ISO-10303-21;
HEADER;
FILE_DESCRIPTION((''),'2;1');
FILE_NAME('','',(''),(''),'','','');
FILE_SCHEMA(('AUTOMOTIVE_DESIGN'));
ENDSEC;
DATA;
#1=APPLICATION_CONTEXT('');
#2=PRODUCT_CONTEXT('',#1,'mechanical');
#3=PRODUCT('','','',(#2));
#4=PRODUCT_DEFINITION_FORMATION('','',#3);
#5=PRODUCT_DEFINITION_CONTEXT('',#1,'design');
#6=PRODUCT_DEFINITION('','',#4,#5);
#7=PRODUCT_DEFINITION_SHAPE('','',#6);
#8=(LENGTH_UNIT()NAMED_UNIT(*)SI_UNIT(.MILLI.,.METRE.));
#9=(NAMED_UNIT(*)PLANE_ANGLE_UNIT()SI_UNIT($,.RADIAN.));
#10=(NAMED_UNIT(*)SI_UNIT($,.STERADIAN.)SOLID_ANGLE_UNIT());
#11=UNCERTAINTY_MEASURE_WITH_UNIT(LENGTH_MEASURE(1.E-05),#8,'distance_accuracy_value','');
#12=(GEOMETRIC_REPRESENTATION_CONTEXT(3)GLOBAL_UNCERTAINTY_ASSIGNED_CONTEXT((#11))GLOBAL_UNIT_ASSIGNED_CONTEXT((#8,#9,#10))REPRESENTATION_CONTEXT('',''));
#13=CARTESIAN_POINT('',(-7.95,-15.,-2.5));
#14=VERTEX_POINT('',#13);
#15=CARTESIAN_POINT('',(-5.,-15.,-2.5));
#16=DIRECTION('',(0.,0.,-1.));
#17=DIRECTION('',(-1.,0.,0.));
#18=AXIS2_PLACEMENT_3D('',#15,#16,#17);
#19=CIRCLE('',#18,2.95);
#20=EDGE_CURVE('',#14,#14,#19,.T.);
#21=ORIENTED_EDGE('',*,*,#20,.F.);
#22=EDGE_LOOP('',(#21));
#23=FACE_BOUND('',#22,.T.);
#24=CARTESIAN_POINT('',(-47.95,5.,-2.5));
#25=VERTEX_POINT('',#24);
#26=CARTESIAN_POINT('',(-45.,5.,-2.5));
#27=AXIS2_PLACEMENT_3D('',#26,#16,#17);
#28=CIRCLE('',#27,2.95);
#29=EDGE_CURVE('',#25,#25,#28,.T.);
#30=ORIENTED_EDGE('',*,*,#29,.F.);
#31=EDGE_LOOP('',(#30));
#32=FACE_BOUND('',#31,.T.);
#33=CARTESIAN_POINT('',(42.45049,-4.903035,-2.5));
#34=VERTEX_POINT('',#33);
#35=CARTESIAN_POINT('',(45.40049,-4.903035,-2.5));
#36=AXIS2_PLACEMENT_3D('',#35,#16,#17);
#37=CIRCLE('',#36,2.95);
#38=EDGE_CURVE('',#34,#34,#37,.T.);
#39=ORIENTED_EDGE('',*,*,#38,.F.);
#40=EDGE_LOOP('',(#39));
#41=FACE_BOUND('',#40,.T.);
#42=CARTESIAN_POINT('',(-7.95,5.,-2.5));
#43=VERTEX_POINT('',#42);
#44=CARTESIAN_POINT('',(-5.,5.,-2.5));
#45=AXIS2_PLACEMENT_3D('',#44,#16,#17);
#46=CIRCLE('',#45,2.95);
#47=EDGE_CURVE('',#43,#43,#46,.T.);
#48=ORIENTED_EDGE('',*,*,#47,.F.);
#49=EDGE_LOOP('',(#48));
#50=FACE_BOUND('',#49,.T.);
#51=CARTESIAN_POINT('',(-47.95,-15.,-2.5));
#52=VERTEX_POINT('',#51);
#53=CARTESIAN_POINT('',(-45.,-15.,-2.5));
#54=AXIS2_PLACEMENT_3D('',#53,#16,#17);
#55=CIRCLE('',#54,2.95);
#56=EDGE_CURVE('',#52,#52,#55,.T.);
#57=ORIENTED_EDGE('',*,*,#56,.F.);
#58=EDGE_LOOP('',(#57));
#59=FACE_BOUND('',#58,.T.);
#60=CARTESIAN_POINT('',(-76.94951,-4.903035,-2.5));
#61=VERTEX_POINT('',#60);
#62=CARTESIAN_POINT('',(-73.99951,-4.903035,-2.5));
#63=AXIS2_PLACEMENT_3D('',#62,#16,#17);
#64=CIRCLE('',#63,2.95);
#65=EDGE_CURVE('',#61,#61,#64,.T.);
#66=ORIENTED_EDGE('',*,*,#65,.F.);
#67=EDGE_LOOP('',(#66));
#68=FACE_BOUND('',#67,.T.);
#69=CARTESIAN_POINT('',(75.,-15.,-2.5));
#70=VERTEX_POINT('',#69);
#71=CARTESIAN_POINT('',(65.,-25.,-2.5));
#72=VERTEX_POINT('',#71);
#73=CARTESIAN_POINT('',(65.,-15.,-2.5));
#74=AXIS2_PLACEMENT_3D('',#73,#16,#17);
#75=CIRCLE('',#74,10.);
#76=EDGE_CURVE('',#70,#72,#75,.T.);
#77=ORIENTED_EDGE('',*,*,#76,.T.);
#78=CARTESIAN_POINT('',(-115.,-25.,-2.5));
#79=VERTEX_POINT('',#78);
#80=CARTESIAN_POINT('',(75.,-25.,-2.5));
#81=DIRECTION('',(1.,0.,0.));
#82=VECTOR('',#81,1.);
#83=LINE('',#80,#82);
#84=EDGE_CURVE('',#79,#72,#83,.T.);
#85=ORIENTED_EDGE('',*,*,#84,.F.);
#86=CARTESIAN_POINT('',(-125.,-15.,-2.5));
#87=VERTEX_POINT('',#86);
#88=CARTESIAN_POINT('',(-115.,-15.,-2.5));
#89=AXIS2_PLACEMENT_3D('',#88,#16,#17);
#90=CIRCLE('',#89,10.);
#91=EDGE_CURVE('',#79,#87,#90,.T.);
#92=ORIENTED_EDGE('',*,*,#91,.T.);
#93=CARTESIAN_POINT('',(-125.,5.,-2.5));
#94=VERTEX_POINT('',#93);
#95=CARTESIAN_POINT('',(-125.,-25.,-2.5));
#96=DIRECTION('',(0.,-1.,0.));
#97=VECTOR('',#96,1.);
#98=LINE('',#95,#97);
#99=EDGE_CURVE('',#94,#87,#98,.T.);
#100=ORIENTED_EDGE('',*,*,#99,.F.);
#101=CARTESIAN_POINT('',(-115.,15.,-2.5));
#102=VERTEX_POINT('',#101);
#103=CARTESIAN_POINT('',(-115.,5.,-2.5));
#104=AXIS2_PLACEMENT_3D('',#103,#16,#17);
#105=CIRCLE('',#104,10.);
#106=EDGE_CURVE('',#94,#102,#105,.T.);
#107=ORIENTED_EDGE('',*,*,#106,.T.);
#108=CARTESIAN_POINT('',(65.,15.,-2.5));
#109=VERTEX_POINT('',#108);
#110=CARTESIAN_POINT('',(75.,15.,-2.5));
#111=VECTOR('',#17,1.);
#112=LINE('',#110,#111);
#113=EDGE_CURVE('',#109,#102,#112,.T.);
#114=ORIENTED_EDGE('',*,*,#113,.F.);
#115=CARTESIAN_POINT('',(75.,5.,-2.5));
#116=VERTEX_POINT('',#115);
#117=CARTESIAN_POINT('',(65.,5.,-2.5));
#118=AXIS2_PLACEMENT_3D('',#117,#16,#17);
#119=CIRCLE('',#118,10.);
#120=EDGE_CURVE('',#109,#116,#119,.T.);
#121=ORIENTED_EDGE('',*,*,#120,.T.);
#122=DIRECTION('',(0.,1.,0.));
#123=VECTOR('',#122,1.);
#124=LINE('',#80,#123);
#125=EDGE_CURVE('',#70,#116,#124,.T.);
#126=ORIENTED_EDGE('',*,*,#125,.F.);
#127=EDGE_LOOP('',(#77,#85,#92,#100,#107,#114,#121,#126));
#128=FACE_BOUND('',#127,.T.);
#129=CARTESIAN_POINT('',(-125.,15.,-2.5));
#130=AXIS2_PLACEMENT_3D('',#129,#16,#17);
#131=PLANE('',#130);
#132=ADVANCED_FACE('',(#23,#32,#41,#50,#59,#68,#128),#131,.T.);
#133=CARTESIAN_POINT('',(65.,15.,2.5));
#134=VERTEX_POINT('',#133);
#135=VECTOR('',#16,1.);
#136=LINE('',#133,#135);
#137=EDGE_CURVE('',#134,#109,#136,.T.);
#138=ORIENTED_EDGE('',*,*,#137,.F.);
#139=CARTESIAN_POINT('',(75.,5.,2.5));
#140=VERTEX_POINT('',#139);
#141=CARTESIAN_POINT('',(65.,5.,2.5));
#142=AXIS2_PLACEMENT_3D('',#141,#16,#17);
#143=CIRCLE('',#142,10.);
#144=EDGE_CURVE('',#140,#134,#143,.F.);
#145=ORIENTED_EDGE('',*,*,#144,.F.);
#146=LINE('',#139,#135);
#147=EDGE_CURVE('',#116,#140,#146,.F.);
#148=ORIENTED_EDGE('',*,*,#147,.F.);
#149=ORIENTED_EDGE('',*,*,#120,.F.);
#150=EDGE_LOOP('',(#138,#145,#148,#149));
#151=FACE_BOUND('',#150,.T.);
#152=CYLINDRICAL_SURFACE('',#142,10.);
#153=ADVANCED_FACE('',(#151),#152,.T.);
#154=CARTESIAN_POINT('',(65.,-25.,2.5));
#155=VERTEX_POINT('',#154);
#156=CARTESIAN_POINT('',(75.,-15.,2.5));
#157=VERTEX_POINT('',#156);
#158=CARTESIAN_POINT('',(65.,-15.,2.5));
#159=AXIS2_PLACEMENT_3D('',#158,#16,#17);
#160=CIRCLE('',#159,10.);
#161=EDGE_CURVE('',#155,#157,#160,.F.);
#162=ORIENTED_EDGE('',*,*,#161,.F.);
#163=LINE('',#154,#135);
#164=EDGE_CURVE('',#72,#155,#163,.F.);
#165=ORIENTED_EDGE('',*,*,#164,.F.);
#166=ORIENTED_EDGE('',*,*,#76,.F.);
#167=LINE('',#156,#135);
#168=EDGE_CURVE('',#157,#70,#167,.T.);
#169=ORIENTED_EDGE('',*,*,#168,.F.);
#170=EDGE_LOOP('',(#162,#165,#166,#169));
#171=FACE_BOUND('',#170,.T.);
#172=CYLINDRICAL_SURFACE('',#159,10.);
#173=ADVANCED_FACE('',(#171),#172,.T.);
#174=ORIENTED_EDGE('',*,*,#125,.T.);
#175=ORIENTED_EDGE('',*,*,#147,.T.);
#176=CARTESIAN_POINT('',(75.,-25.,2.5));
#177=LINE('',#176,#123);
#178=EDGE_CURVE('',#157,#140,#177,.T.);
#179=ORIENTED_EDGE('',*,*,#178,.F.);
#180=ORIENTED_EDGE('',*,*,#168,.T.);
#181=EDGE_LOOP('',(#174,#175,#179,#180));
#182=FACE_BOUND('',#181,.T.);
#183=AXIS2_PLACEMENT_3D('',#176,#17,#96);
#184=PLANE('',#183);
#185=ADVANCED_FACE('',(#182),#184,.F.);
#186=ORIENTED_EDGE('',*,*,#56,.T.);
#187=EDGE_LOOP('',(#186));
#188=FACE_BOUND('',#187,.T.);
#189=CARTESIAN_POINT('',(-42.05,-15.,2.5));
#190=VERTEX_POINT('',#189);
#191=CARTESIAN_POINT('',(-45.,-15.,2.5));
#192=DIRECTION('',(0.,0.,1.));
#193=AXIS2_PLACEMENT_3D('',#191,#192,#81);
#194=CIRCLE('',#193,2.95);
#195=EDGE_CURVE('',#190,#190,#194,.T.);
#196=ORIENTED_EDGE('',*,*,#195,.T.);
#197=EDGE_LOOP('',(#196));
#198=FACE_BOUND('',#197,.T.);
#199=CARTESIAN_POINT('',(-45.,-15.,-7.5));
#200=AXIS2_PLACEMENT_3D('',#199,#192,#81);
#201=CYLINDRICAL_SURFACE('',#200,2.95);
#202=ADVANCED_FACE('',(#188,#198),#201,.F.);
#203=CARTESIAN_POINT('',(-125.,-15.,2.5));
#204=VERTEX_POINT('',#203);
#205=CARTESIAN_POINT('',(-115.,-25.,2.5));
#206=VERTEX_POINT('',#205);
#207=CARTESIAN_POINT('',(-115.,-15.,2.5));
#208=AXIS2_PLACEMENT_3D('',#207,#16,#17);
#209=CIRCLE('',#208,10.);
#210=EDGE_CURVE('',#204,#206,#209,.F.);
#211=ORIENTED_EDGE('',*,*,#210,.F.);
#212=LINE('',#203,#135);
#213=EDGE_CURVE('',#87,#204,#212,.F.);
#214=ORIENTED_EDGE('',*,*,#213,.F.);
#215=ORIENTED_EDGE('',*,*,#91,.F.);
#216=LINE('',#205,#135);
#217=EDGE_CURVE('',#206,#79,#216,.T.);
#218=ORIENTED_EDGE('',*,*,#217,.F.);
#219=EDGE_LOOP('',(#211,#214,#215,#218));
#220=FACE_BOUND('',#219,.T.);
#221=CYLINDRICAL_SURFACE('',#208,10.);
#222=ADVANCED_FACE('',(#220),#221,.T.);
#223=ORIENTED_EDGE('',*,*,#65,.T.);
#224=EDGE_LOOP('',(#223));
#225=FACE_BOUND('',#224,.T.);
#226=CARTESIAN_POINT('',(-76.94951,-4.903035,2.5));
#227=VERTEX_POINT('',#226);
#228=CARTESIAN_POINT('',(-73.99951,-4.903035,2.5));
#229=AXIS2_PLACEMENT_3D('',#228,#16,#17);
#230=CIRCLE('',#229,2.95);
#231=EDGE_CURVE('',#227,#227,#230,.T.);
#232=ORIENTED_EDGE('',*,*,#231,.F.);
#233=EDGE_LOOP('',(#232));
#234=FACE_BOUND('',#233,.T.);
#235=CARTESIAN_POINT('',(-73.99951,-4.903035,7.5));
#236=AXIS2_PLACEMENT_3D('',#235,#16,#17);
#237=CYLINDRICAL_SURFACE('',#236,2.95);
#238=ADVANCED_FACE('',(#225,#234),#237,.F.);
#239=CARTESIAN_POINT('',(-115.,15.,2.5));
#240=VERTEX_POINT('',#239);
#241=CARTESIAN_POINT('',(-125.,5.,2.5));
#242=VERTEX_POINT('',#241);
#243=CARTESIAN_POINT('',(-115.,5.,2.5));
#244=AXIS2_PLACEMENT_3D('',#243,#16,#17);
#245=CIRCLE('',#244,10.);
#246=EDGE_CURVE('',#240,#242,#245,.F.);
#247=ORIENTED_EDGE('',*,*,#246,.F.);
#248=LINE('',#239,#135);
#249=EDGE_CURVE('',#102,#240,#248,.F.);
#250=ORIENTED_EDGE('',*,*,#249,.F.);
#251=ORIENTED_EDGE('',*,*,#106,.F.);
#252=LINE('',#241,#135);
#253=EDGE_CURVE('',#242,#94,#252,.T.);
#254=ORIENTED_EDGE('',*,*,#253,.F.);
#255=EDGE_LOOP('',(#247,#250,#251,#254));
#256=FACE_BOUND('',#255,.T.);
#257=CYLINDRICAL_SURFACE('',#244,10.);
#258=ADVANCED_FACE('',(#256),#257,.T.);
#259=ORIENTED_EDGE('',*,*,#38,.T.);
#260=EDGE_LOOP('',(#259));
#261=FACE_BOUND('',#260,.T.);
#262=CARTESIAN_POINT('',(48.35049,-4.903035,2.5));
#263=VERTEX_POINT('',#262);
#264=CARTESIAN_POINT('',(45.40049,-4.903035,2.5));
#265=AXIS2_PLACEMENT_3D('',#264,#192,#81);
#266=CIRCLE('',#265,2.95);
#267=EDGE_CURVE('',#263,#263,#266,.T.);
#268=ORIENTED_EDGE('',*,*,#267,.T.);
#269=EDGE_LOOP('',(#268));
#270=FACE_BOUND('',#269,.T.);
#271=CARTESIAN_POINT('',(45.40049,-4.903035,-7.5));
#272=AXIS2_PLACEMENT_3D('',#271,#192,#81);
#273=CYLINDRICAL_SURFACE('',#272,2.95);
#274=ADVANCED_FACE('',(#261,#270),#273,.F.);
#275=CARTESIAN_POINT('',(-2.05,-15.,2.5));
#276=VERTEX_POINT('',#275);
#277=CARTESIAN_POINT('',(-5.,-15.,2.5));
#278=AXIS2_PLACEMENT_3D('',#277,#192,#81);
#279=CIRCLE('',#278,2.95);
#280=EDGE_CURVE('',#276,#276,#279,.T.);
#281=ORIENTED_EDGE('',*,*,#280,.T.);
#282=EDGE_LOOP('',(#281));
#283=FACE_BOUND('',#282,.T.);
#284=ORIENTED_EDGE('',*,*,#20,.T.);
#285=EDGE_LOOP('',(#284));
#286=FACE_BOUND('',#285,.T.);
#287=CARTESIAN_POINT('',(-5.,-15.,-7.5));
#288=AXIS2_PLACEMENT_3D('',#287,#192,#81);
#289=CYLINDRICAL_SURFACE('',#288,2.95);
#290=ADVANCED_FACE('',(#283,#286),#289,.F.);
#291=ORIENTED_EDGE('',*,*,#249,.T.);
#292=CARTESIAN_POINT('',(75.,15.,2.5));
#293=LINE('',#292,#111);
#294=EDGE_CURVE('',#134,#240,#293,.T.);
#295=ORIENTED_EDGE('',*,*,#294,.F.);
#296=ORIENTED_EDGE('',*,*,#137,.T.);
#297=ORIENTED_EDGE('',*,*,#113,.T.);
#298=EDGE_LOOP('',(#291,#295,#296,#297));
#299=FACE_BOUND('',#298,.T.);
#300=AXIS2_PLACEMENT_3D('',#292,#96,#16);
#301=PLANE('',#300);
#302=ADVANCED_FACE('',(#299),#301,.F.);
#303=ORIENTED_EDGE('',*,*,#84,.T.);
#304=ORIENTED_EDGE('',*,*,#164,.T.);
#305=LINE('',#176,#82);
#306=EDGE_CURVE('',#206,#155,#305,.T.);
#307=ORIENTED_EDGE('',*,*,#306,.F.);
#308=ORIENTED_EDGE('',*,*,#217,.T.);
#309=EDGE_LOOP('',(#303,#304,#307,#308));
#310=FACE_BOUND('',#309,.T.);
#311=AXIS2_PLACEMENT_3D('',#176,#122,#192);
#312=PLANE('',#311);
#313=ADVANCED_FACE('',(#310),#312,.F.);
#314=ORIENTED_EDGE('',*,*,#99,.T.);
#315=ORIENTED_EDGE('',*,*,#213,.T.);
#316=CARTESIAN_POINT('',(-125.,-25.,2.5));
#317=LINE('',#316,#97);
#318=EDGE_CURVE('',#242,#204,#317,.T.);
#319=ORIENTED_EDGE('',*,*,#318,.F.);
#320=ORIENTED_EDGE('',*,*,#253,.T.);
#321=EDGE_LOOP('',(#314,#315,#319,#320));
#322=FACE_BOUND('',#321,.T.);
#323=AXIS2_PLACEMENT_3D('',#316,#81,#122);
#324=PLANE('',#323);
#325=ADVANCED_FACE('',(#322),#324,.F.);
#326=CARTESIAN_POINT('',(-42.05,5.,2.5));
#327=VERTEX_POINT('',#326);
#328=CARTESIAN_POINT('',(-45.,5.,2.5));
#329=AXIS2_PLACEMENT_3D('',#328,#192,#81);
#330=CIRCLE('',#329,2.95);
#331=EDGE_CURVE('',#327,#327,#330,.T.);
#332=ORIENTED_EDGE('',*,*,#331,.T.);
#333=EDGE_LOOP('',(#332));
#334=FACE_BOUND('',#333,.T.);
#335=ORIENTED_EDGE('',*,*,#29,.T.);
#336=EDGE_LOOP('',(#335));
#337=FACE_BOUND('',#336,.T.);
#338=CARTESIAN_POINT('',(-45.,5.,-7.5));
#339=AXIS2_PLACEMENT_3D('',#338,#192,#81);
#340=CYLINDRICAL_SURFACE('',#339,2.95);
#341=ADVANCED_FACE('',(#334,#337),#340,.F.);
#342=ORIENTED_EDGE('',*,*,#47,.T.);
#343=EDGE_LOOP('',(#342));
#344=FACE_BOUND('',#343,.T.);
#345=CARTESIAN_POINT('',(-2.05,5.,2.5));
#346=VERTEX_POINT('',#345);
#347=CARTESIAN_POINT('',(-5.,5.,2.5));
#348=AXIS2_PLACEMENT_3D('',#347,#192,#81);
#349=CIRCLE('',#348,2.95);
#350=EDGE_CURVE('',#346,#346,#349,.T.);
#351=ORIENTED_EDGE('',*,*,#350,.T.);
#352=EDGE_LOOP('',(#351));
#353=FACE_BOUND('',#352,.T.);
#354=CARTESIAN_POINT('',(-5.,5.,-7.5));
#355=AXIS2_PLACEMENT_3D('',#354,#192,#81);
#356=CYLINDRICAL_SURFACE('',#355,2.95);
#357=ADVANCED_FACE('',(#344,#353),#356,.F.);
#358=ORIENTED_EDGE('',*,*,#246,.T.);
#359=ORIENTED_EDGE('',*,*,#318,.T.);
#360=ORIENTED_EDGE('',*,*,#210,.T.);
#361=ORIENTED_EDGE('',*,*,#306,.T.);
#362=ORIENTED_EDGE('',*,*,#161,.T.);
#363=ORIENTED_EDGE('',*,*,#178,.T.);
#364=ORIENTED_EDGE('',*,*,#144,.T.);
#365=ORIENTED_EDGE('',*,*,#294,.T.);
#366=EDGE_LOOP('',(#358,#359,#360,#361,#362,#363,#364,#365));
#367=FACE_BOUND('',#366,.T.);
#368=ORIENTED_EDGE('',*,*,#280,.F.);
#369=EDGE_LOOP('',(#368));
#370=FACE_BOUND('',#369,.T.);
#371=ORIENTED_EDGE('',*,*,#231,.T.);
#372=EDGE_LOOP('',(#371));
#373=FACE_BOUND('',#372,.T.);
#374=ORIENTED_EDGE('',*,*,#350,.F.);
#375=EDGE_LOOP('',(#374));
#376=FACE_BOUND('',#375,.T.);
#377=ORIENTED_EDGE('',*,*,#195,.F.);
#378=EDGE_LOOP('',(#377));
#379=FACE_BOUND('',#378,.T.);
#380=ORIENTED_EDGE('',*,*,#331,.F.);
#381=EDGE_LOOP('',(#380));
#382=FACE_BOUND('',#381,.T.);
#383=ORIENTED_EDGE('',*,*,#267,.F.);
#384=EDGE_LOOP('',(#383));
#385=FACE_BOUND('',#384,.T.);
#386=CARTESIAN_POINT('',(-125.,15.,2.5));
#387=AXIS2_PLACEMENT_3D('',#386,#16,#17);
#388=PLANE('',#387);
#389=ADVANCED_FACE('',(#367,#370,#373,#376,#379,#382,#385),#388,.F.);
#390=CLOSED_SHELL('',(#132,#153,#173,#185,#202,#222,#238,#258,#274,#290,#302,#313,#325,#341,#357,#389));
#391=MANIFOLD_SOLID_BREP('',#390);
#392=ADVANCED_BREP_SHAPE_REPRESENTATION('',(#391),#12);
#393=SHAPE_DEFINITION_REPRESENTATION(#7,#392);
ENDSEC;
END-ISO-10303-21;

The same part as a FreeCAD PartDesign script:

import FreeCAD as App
import Part
import Sketcher

V = App.Vector
Q = App.Units.Quantity


def edges_at(feature, points):
    """Names of the edges that pass closest to the given points."""
    edges = feature.Shape.Edges
    near = lambda p: min(range(len(edges)), key=lambda i: edges[i].distToShape(Part.Vertex(*p))[0])
    return sorted({f"Edge{near(p) + 1}" for p in points})


def add_polygon(sketch, points):
    """Adds a closed chain of lines whose ends are joined by coincident constraints."""
    first, n = sketch.GeometryCount, len(points)
    for a, b in zip(points, points[1:] + points[:1]):
        sketch.addGeometry(Part.LineSegment(App.Vector(*a, 0), App.Vector(*b, 0)), False)
    for i in range(n):
        sketch.addConstraint(Sketcher.Constraint("Coincident", first + i, 2, first + (i + 1) % n, 1))

doc = App.newDocument("Part")
body = doc.addObject("PartDesign::Body", "Body")

sketch1 = body.newObject("Sketcher::SketchObject", "Sketch")
sketch1.AttachmentSupport = (doc.getObject("XY_Plane"), [""])
sketch1.MapMode = "FlatFace"
add_polygon(sketch1, [(-125, 15), (-125, -25), (75, -25), (75, 15)])
sketch1.addConstraint([
    Sketcher.Constraint("Vertical", 0),
    Sketcher.Constraint("Horizontal", 1),
    Sketcher.Constraint("Vertical", 2),
    Sketcher.Constraint("Horizontal", 3),
    Sketcher.Constraint("DistanceX", 1, 1, 1, 2, Q("200 mm")),
    Sketcher.Constraint("DistanceY", 0, 2, 0, 1, Q("40 mm")),
    Sketcher.Constraint("DistanceX", 0, 2, -1, 1, Q("125 mm")),
    Sketcher.Constraint("DistanceY", 0, 2, -1, 1, Q("25 mm")),
])
pad1 = body.newObject("PartDesign::Pad", "Pad")
pad1.Profile = sketch1
pad1.Length = 5
pad1.Midplane = True
doc.recompute()

fillet = body.newObject("PartDesign::Fillet", "Fillet")
fillet.Base = (pad1, edges_at(pad1, [
    (75, 15, 0),
    (75, -25, 0),
    (-125, -25, 0),
    (-125, 15, 0),
]))
fillet.Radius = 10

sketch2 = body.newObject("Sketcher::SketchObject", "Sketch001")
sketch2.AttachmentSupport = (doc.getObject("XY_Plane"), [""])
sketch2.MapMode = "FlatFace"
sketch2.AttachmentOffset = App.Placement(V(0, 0, -2.5), App.Rotation())
sketch2.addGeometry(Part.Circle(V(-74, -4.9, 0), V(0, 0, 1), 3), False)
sketch2.addConstraint([
    Sketcher.Constraint("Diameter", 0, Q("5.9 mm")),
    Sketcher.Constraint("DistanceX", 0, 3, -1, 1, Q("73.99951 mm")),
    Sketcher.Constraint("DistanceY", 0, 3, -1, 1, Q("4.903035 mm")),
])
pocket1 = body.newObject("PartDesign::Pocket", "Pocket")
pocket1.Profile = sketch2
pocket1.Length = 10
pocket1.Reversed = True

sketch3 = body.newObject("Sketcher::SketchObject", "Sketch002")
sketch3.AttachmentSupport = (doc.getObject("XY_Plane"), [""])
sketch3.MapMode = "FlatFace"
sketch3.AttachmentOffset = App.Placement(V(0, 0, 2.5), App.Rotation())
sketch3.addGeometry([
    Part.Circle(V(-45, 5, 0), V(0, 0, 1), 3),
    Part.Circle(V(-5, 5, 0), V(0, 0, 1), 3),
    Part.Circle(V(-45, -15, 0), V(0, 0, 1), 3),
    Part.Circle(V(-5, -15, 0), V(0, 0, 1), 3),
], False)
sketch3.addConstraint([
    Sketcher.Constraint("Equal", 0, 1),
    Sketcher.Constraint("Equal", 1, 2),
    Sketcher.Constraint("Equal", 2, 3),
    Sketcher.Constraint("Horizontal", 0, 3, 1, 3),
    Sketcher.Constraint("Horizontal", 2, 3, 3, 3),
    Sketcher.Constraint("Vertical", 0, 3, 2, 3),
    Sketcher.Constraint("Vertical", 1, 3, 3, 3),
    Sketcher.Constraint("Diameter", 0, Q("5.9 mm")),
    Sketcher.Constraint("DistanceX", 0, 3, -1, 1, Q("45 mm")),
    Sketcher.Constraint("DistanceY", -1, 1, 0, 3, Q("5 mm")),
    Sketcher.Constraint("DistanceX", 1, 3, -1, 1, Q("5 mm")),
    Sketcher.Constraint("DistanceY", 2, 3, -1, 1, Q("15 mm")),
])
pocket2 = body.newObject("PartDesign::Pocket", "Pocket001")
pocket2.Profile = sketch3
pocket2.Length = 10

sketch4 = body.newObject("Sketcher::SketchObject", "Sketch003")
sketch4.AttachmentSupport = (doc.getObject("XY_Plane"), [""])
sketch4.MapMode = "FlatFace"
sketch4.AttachmentOffset = App.Placement(V(0, 0, 2.5), App.Rotation())
sketch4.addGeometry(Part.Circle(V(45.4, -4.9, 0), V(0, 0, 1), 3), False)
sketch4.addConstraint([
    Sketcher.Constraint("Diameter", 0, Q("5.9 mm")),
    Sketcher.Constraint("DistanceX", -1, 1, 0, 3, Q("45.40049 mm")),
    Sketcher.Constraint("DistanceY", 0, 3, -1, 1, Q("4.903035 mm")),
])
pocket3 = body.newObject("PartDesign::Pocket", "Pocket002")
pocket3.Profile = sketch4
pocket3.Length = 10

doc.recompute()
